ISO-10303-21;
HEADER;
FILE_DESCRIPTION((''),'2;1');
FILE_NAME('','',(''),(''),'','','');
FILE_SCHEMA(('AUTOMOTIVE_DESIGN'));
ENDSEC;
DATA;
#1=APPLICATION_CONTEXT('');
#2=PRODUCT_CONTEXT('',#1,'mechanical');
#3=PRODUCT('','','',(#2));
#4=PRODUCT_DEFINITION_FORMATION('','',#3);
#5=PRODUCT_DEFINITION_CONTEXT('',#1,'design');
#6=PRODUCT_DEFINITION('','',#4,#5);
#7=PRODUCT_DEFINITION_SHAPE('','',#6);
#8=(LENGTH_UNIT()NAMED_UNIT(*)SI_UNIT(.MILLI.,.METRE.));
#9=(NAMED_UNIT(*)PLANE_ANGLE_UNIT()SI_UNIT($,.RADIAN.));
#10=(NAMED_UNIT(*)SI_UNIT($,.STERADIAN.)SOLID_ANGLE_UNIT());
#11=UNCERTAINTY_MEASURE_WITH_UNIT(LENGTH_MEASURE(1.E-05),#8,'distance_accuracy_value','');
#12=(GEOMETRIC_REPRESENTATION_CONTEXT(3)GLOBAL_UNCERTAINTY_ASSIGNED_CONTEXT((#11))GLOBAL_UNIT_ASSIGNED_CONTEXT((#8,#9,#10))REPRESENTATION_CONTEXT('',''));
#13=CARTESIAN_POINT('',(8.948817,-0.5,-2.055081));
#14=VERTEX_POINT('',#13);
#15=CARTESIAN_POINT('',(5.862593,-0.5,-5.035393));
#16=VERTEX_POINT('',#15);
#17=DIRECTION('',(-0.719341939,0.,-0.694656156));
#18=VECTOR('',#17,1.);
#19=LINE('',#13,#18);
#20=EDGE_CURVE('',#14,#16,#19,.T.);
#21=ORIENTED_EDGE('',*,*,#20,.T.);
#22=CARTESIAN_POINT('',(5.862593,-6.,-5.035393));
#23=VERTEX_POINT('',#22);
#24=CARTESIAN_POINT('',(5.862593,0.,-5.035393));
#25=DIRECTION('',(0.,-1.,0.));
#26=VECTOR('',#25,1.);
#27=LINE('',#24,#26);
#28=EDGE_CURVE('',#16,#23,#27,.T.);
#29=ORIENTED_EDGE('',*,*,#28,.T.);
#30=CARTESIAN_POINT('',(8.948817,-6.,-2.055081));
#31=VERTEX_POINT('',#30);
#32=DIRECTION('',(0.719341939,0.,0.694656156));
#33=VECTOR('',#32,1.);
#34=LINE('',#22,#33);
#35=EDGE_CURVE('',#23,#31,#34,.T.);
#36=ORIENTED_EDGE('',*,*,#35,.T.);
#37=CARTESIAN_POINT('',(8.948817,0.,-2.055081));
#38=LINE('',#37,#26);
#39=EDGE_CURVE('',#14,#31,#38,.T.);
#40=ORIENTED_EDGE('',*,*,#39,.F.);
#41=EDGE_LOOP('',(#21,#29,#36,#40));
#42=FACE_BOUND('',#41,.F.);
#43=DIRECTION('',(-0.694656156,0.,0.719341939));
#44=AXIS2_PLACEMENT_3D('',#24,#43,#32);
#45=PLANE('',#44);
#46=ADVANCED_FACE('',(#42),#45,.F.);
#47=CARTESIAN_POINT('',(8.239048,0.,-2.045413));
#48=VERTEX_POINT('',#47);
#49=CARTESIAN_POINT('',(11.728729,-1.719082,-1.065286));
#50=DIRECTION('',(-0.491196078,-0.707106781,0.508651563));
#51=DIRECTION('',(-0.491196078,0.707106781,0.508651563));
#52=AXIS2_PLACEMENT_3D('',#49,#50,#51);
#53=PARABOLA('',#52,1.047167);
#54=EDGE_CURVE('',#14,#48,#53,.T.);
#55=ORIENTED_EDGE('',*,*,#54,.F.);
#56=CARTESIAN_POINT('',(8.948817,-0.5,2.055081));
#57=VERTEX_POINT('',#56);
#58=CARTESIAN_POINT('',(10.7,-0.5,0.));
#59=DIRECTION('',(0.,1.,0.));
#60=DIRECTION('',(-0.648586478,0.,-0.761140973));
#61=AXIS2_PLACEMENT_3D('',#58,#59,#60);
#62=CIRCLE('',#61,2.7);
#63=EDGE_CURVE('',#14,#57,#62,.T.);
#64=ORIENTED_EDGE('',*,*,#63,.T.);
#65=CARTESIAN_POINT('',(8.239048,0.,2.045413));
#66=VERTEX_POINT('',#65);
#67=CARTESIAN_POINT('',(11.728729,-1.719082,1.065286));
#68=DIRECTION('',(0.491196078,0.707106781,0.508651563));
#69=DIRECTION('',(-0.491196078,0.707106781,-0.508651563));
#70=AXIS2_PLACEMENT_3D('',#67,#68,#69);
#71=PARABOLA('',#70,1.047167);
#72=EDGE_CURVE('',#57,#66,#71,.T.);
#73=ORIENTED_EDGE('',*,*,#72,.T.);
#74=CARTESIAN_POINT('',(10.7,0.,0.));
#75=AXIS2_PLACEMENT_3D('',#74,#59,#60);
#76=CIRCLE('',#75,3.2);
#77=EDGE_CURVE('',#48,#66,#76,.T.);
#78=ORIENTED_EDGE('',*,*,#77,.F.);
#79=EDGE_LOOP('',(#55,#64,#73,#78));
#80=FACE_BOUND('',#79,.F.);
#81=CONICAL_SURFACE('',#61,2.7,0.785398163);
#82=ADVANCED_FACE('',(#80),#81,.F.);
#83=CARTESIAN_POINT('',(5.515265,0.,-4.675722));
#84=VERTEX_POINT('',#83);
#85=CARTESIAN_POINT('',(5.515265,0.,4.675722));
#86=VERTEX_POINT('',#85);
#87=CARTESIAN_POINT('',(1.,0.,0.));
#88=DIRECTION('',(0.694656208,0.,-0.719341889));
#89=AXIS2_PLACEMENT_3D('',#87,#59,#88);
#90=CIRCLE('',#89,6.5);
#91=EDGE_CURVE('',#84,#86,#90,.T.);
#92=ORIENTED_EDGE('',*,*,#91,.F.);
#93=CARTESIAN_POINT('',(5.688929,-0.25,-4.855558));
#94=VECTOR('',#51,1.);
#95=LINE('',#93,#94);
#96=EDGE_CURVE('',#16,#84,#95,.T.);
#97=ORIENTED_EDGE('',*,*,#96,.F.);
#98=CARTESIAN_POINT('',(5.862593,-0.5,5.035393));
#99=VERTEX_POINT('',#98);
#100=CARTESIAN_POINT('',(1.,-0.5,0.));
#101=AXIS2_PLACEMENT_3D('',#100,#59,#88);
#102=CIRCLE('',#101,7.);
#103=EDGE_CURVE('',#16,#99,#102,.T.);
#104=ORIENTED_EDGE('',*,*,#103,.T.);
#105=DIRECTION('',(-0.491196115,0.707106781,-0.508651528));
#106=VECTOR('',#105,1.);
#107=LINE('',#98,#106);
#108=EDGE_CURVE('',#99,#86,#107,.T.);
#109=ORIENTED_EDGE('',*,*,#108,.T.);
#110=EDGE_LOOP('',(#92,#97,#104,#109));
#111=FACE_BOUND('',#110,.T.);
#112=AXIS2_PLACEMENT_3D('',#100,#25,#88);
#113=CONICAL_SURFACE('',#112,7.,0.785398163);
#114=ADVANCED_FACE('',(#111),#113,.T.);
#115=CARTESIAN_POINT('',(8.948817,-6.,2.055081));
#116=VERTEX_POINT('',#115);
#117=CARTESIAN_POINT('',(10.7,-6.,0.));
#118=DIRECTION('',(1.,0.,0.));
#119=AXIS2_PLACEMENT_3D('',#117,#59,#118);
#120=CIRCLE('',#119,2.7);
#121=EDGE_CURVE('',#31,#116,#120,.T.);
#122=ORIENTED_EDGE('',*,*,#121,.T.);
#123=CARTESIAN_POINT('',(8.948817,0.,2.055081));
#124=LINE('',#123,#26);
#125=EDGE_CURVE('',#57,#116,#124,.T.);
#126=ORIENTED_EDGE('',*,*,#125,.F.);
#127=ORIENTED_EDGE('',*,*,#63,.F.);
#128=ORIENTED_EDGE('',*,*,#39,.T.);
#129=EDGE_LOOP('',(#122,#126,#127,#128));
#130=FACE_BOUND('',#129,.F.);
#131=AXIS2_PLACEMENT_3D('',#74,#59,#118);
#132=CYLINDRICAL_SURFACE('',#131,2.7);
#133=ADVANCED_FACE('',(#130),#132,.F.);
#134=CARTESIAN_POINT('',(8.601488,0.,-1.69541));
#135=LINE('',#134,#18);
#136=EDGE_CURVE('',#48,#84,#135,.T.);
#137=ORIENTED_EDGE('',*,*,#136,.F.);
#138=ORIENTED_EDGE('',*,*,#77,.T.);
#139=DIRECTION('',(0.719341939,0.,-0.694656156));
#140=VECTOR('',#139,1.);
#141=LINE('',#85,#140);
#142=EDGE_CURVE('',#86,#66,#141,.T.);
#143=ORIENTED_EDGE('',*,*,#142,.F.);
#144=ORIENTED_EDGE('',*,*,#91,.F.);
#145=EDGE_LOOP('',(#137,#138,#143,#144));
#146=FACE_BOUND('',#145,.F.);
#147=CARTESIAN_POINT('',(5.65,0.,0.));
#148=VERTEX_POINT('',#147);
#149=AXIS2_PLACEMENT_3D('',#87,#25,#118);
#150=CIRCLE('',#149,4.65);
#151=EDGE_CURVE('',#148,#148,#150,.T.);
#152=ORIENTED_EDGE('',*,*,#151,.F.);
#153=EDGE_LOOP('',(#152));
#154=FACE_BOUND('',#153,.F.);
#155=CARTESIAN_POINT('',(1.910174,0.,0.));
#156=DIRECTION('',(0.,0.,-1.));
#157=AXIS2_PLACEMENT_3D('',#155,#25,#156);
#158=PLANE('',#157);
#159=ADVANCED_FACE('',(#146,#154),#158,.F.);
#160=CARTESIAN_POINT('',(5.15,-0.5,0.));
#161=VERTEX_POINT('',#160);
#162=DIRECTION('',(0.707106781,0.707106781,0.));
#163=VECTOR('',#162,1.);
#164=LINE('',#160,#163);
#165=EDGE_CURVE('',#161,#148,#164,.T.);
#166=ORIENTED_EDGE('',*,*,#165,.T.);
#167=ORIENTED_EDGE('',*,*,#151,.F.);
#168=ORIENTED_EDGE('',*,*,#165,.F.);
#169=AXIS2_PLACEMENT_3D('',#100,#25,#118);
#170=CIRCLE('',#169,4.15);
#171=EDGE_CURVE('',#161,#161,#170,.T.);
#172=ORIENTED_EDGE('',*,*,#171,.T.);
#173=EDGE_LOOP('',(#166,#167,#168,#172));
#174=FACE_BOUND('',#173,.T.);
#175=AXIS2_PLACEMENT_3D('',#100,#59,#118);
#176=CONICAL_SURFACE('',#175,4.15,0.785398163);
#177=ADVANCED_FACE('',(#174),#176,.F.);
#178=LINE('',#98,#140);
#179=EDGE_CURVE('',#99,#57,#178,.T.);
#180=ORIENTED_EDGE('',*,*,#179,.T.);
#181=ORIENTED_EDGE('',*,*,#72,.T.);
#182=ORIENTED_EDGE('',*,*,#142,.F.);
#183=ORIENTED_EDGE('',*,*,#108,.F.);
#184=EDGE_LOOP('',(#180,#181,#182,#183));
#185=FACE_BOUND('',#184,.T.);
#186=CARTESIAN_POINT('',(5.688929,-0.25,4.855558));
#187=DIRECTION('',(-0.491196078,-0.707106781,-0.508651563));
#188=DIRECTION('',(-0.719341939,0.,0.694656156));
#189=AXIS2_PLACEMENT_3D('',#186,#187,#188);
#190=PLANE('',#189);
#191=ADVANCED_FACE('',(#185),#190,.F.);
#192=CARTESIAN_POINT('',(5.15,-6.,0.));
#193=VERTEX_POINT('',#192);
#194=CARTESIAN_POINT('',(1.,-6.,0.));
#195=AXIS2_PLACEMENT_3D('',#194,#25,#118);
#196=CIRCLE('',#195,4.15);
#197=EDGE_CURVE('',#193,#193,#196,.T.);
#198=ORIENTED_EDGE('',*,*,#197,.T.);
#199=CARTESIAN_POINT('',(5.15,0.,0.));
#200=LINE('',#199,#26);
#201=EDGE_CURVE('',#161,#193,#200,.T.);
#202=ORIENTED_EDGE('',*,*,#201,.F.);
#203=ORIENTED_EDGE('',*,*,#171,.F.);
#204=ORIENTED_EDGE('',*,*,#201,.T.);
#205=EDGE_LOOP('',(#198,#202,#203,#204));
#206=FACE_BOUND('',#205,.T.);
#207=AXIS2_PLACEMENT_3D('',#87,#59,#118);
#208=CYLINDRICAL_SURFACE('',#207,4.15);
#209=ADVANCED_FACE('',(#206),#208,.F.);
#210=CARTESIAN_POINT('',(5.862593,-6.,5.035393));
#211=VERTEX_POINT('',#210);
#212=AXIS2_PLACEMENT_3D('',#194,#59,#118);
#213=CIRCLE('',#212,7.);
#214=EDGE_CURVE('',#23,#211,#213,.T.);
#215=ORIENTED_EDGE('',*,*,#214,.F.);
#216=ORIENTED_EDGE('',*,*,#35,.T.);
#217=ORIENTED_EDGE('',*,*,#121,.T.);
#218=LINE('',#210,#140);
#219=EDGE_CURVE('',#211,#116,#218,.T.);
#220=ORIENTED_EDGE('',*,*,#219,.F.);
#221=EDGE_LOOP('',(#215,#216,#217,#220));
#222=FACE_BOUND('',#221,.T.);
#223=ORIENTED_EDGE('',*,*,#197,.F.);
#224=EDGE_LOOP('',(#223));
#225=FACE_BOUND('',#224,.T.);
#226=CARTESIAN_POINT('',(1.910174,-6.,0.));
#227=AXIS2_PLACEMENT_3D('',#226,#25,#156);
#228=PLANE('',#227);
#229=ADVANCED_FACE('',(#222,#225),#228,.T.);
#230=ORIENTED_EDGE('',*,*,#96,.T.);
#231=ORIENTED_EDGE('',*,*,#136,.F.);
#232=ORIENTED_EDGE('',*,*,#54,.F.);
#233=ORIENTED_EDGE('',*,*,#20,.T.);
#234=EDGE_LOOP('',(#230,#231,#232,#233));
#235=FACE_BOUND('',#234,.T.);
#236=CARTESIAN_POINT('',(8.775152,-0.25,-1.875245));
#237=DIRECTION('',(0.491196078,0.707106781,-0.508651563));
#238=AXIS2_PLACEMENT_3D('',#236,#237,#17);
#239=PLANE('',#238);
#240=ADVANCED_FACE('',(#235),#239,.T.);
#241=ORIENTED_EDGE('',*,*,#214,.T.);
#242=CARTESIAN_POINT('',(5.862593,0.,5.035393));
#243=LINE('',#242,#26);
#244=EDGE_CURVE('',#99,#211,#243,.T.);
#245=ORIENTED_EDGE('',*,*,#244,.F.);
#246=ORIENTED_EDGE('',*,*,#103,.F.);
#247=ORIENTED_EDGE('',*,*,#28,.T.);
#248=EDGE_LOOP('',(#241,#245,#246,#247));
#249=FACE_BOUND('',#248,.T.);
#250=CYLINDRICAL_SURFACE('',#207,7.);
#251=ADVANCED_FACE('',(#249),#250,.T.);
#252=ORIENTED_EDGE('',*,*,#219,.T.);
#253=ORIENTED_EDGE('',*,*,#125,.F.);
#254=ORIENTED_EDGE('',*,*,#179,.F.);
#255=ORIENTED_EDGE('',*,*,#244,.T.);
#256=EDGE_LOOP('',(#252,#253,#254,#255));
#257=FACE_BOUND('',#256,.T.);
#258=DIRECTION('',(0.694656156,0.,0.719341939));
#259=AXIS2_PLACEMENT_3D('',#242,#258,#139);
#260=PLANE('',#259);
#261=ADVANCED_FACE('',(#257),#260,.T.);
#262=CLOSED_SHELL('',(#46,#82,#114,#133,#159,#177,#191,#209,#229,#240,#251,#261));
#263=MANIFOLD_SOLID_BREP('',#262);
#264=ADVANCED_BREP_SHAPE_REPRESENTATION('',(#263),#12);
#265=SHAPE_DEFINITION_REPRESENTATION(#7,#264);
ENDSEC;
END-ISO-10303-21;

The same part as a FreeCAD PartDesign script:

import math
import FreeCAD as App
import Part
import Sketcher
from FreeCAD import Vector
Q = App.Units.Quantity


def edges_at(feature, points):
    """Names of the edges that pass closest to the given points."""
    edges = feature.Shape.Edges
    near = lambda p: min(range(len(edges)), key=lambda i: edges[i].distToShape(Part.Vertex(*p))[0])
    return sorted({f"Edge{near(p) + 1}" for p in points})

doc = App.newDocument("Part")
body = doc.addObject("PartDesign::Body", "Body")

# Sketch on XZ plane
sketch1 = doc.addObject("Sketcher::SketchObject", "Sketch")
body.addObject(sketch1)
sketch1.AttachmentSupport = (doc.XZ_Plane, [""])
sketch1.MapMode = "FlatFace"
sketch1.addGeometry([
    Part.ArcOfCircle(Part.Circle(Vector(1, 0, 0), Vector(0, 0, 1), 7), math.radians(46), math.radians(314)),  # 0
    Part.LineSegment(Vector(5.9, -5, 0), Vector(8.9, -2.1, 0)),  # 1
    Part.ArcOfCircle(Part.Circle(Vector(10.7, 0, 0), Vector(0, 0, 1), 2.7), math.radians(130), math.radians(230)),  # 2
    Part.LineSegment(Vector(8.9, 2.1, 0), Vector(5.9, 5, 0)),  # 3
    Part.Circle(Vector(1, 0, 0), Vector(0, 0, 1), 4.2),  # 4
], False)
sketch1.addConstraint([
    Sketcher.Constraint("Tangent", 0, 2, 1, 1),
    Sketcher.Constraint("Coincident", 1, 2, 2, 2),
    Sketcher.Constraint("Coincident", 2, 1, 3, 1),
    Sketcher.Constraint("Tangent", 3, 2, 0, 1),
    Sketcher.Constraint("Coincident", 4, 3, 0, 3),
    Sketcher.Constraint("Symmetric", 1, 2, 2, 1, -1),
    Sketcher.Constraint("PointOnObject", 0, 3, -1),
    Sketcher.Constraint("Radius", 0, 7.0),
    Sketcher.Constraint("Diameter", 4, 8.3),
    Sketcher.Constraint("Radius", 2, 2.7),
    Sketcher.Constraint("Angle", 1, Q("44 deg")),
    Sketcher.Constraint("DistanceX", -1, 1, 0, 3, 1.0),
    Sketcher.Constraint("DistanceX", -1, 1, 2, 3, 10.7),
])
pad1 = doc.addObject("PartDesign::Pad", "Pad")
body.addObject(pad1)
pad1.Profile = sketch1
pad1.Length = 6
doc.recompute()

chamfer = doc.addObject("PartDesign::Chamfer", "Chamfer")
body.addObject(chamfer)
chamfer.Base = (pad1, edges_at(pad1, [
    (-3.15, 0, 0),
    (-6, 0, 0),
    (7.406, 0, -3.545),
    (7.406, 0, 3.545),
    (8, 0, 0),
]))
chamfer.Size = 0.5

doc.recompute()
